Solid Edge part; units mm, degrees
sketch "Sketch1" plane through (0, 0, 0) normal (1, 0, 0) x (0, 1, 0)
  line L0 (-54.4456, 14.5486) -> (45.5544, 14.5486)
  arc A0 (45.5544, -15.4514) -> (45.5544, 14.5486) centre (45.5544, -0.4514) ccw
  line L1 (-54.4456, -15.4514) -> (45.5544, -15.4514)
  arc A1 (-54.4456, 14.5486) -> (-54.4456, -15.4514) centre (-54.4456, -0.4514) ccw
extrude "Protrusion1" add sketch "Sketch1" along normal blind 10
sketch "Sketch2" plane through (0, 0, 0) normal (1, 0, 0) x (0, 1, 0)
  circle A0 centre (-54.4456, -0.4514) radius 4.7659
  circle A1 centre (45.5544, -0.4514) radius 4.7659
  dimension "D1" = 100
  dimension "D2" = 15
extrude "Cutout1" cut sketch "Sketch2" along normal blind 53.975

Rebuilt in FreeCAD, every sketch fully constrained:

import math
import FreeCAD as App
import Part
import Sketcher

V = App.Vector
Q = App.Units.Quantity

doc = App.newDocument("Part")
params = doc.addObject("Spreadsheet::Sheet", "Params")
for row, (alias, value) in enumerate([
    ("sketch1_width", "3.937 in"),
    ("pad1_length", "0.3937008 in"),
    ("pocket1_length", "2.125 in"),
], start=1):
    params.set(f"A{row}", alias)
    params.set(f"B{row}", "=" + value)
    params.setAlias(f"B{row}", alias)

body = doc.addObject("PartDesign::Body", "Body")

# Sketch on YZ plane
sketch1 = body.newObject("Sketcher::SketchObject", "Sketch")
sketch1.AttachmentSupport = (doc.getObject("YZ_Plane"), [""])
sketch1.MapMode = "FlatFace"
sketch1.addGeometry([
    Part.LineSegment(V(46, 15, 0), V(-54, 15, 0)),
    Part.ArcOfCircle(Part.Circle(V(-54, 0, 0), V(0, 0, 1), 15), math.radians(90), math.radians(270)),
    Part.LineSegment(V(-54, -15, 0), V(46, -15, 0)),
    Part.ArcOfCircle(Part.Circle(V(46, 0, 0), V(0, 0, 1), 15), math.radians(-90), math.radians(90)),
], False)
sketch1.addConstraint([
    Sketcher.Constraint("Tangent", 0, 2, 1, 1),
    Sketcher.Constraint("Tangent", 1, 2, 2, 1),
    Sketcher.Constraint("Tangent", 2, 2, 3, 1),
    Sketcher.Constraint("Tangent", 3, 2, 0, 1),
    Sketcher.Constraint("Horizontal", 0),
    Sketcher.Constraint("Horizontal", 2),
    Sketcher.Constraint("DistanceX", 0, 2, 0, 1, Q("3.937 in")),
    Sketcher.Constraint("Radius", 1, 15.0),
    Sketcher.Constraint("DistanceX", 1, 3, -1, 1, 54.4456),
    Sketcher.Constraint("DistanceY", 1, 3, -1, 1, 0.4514),
])
sketch1.setExpression("Constraints[6]", "Params.sketch1_width")
pad1 = body.newObject("PartDesign::Pad", "Pad")
pad1.Profile = sketch1
pad1.setExpression("Length", "Params.pad1_length")

# Sketch on YZ plane
sketch2 = body.newObject("Sketcher::SketchObject", "Sketch001")
sketch2.AttachmentSupport = (doc.getObject("YZ_Plane"), [""])
sketch2.MapMode = "FlatFace"
sketch2.addGeometry([
    Part.Circle(V(-54.4, -0.5, 0), V(0, 0, 1), 4.8),
    Part.Circle(V(45.6, -0.5, 0), V(0, 0, 1), 4.8),
], False)
sketch2.addConstraint([
    Sketcher.Constraint("Equal", 0, 1),
    Sketcher.Constraint("Horizontal", 0, 3, 1, 3),
    Sketcher.Constraint("Diameter", 0, 9.5318),
    Sketcher.Constraint("DistanceX", 0, 3, 1, 3, Q("3.937 in")),
    Sketcher.Constraint("DistanceX", 0, 3, -1, 1, 54.4456),
    Sketcher.Constraint("DistanceY", 0, 3, -1, 1, 0.4514),
])
pocket1 = body.newObject("PartDesign::Pocket", "Pocket")
pocket1.Profile = sketch2
pocket1.setExpression("Length", "Params.pocket1_length")
pocket1.Reversed = True

doc.recompute()
